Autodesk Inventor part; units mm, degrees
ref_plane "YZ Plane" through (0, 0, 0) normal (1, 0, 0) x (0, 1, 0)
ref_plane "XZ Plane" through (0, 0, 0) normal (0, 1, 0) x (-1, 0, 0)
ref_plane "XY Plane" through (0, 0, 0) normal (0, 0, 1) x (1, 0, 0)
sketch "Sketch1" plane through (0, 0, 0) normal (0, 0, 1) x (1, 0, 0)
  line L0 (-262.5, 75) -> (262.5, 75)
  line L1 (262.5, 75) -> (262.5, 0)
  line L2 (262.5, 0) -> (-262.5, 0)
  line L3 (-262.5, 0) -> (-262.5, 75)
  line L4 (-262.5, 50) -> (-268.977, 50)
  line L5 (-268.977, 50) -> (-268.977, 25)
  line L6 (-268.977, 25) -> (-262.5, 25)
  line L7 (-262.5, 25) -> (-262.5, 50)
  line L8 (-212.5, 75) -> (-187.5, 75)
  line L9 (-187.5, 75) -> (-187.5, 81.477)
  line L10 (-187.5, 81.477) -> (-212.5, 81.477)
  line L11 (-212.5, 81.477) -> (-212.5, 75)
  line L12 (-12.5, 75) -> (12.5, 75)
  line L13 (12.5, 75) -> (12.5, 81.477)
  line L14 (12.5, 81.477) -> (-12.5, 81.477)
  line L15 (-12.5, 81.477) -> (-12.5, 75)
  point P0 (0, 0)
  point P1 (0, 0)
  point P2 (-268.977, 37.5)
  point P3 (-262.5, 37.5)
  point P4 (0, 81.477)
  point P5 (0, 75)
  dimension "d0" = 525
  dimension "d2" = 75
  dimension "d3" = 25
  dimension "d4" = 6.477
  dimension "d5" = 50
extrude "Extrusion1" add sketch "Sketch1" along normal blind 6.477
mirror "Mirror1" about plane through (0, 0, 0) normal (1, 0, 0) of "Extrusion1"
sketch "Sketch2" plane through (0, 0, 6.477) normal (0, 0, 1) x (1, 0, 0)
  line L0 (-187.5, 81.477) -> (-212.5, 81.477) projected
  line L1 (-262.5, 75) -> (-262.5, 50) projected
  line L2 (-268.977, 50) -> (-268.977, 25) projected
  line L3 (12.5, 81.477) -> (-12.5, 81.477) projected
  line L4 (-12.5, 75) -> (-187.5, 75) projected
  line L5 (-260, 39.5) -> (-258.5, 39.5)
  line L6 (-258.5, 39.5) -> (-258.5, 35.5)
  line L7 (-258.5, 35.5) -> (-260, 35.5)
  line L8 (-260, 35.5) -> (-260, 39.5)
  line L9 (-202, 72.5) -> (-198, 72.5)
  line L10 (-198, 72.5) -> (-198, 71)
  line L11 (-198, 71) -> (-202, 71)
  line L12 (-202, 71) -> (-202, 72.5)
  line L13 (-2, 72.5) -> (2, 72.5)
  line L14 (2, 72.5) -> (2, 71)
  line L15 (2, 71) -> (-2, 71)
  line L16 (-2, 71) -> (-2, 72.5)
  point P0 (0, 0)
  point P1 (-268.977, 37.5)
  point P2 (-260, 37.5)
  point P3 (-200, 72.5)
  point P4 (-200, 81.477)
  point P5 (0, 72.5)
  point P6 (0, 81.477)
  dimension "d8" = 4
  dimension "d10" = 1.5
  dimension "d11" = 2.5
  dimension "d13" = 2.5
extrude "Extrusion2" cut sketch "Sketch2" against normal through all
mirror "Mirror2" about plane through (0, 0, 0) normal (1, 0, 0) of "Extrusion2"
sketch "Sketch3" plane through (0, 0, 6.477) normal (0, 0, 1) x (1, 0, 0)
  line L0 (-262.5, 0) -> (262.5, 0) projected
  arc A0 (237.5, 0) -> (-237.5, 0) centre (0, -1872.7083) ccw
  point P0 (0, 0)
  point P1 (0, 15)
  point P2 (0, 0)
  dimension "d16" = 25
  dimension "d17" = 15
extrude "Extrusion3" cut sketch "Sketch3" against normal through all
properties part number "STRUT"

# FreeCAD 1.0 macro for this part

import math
import FreeCAD as App
import Part
import Sketcher

V = App.Vector
Q = App.Units.Quantity


def add_polygon(sketch, points):
    """Adds a closed chain of lines whose ends are joined by coincident constraints."""
    first, n = sketch.GeometryCount, len(points)
    for a, b in zip(points, points[1:] + points[:1]):
        sketch.addGeometry(Part.LineSegment(App.Vector(*a, 0), App.Vector(*b, 0)), False)
    for i in range(n):
        sketch.addConstraint(Sketcher.Constraint("Coincident", first + i, 2, first + (i + 1) % n, 1))

doc = App.newDocument("Part")
body = doc.addObject("PartDesign::Body", "Body")

sketch1 = body.newObject("Sketcher::SketchObject", "Sketch")
sketch1.AttachmentSupport = (doc.getObject("XY_Plane"), [""])
sketch1.MapMode = "FlatFace"
add_polygon(sketch1, [(-212, 75), (-262, 75), (-262, 50), (-269, 50), (-269, 25), (-262, 25), (-262, 0), (262, 0), (262, 75), (12, 75), (12, 81), (-12, 81), (-12, 75), (-188, 75), (-188, 81), (-212, 81)])
sketch1.addConstraint([
    Sketcher.Constraint("Horizontal", 0),
    Sketcher.Constraint("Vertical", 1),
    Sketcher.Constraint("Horizontal", 2),
    Sketcher.Constraint("Vertical", 3),
    Sketcher.Constraint("Horizontal", 4),
    Sketcher.Constraint("Vertical", 5),
    Sketcher.Constraint("Horizontal", 6),
    Sketcher.Constraint("Vertical", 7),
    Sketcher.Constraint("Horizontal", 8),
    Sketcher.Constraint("Vertical", 9),
    Sketcher.Constraint("Horizontal", 10),
    Sketcher.Constraint("Vertical", 11),
    Sketcher.Constraint("Horizontal", 12),
    Sketcher.Constraint("Vertical", 13),
    Sketcher.Constraint("Horizontal", 14),
    Sketcher.Constraint("Vertical", 15),
    Sketcher.Constraint("Symmetric", 5, 2, 6, 2, -1, 1),
    Sketcher.Constraint("Symmetric", 0, 2, 7, 2, -2),
    Sketcher.Constraint("Symmetric", 8, 2, 11, 2, -2),
    Sketcher.Constraint("Horizontal", 10, 2, 13, 2),
    Sketcher.Constraint("Equal", 10, 14),
    Sketcher.Constraint("Equal", 14, 1),
    Sketcher.Constraint("Equal", 1, 3),
    Sketcher.Constraint("Equal", 3, 5),
    Sketcher.Constraint("Equal", 4, 9),
    Sketcher.Constraint("DistanceX", 0, 2, 0, 1, Q("50 mm")),
    Sketcher.Constraint("DistanceX", 6, 1, 6, 2, Q("525 mm")),
    Sketcher.Constraint("DistanceX", 10, 2, 10, 1, Q("25 mm")),
    Sketcher.Constraint("DistanceX", 2, 2, 2, 1, Q("6.477 mm")),
])
pad1 = body.newObject("PartDesign::Pad", "Pad")
pad1.Profile = sketch1
pad1.Length = 6.477
doc.recompute()

mirrored = body.newObject("PartDesign::Mirrored", "Mirrored")
mirrored.Originals = [pad1]
mirrored.MirrorPlane = (doc.getObject("YZ_Plane"), [""])
body.Tip = mirrored

sketch2 = body.newObject("Sketcher::SketchObject", "Sketch001")
sketch2.AttachmentSupport = (doc.getObject("XY_Plane"), [""])
sketch2.MapMode = "FlatFace"
sketch2.AttachmentOffset = App.Placement(V(0, 0, 6.477), App.Rotation())
add_polygon(sketch2, [(-258.5, 39.5), (-260, 39.5), (-260, 35.5), (-258.5, 35.5)])
add_polygon(sketch2, [(-198, 72.5), (-202, 72.5), (-202, 71), (-198, 71)])
add_polygon(sketch2, [(2, 72.5), (-2, 72.5), (-2, 71), (2, 71)])
sketch2.addConstraint([
    Sketcher.Constraint("Horizontal", 0),
    Sketcher.Constraint("Vertical", 1),
    Sketcher.Constraint("Horizontal", 2),
    Sketcher.Constraint("Vertical", 3),
    Sketcher.Constraint("Horizontal", 4),
    Sketcher.Constraint("Vertical", 5),
    Sketcher.Constraint("Horizontal", 6),
    Sketcher.Constraint("Vertical", 7),
    Sketcher.Constraint("Horizontal", 8),
    Sketcher.Constraint("Vertical", 9),
    Sketcher.Constraint("Horizontal", 10),
    Sketcher.Constraint("Vertical", 11),
    Sketcher.Constraint("Horizontal", 7, 2, 8, 2),
    Sketcher.Constraint("Horizontal", 6, 2, 9, 2),
    Sketcher.Constraint("Equal", 6, 8),
    Sketcher.Constraint("Equal", 10, 1),
    Sketcher.Constraint("Equal", 2, 5),
    Sketcher.Constraint("DistanceX", 4, 2, 4, 1, Q("4 mm")),
    Sketcher.Constraint("DistanceX", 0, 2, 0, 1, Q("1.5 mm")),
    Sketcher.Constraint("DistanceX", 0, 2, -1, 1, Q("260 mm")),
    Sketcher.Constraint("DistanceX", 4, 2, -1, 1, Q("202 mm")),
    Sketcher.Constraint("DistanceY", -1, 1, 5, 2, Q("71 mm")),
    Sketcher.Constraint("DistanceX", 8, 2, -1, 1, Q("2 mm")),
    Sketcher.Constraint("DistanceY", 3, 2, 4, 2, Q("33 mm")),
])
pocket1 = body.newObject("PartDesign::Pocket", "Pocket")
pocket1.Profile = sketch2
pocket1.Type = "ThroughAll"
doc.recompute()

mirrored2 = body.newObject("PartDesign::Mirrored", "Mirrored001")
mirrored2.Originals = [pocket1]
mirrored2.MirrorPlane = (doc.getObject("YZ_Plane"), [""])
body.Tip = mirrored2

sketch3 = body.newObject("Sketcher::SketchObject", "Sketch002")
sketch3.AttachmentSupport = (doc.getObject("XY_Plane"), [""])
sketch3.MapMode = "FlatFace"
sketch3.AttachmentOffset = App.Placement(V(0, 0, 6.477), App.Rotation())
sketch3.addGeometry([
    Part.ArcOfCircle(Part.Circle(V(0, -1873, 0), V(0, 0, 1), 1888), math.radians(82.77), math.radians(97.23)),
    Part.LineSegment(V(-238, 0, 0), V(238, 0, 0)),
], False)
sketch3.addConstraint([
    Sketcher.Constraint("Coincident", 0, 1, 1, 2),
    Sketcher.Constraint("Coincident", 1, 1, 0, 2),
    Sketcher.Constraint("Horizontal", 1),
    Sketcher.Constraint("PointOnObject", 0, 3, -2),
    Sketcher.Constraint("PointOnObject", 0, 1, -1),
    Sketcher.Constraint("DistanceX", 1, 1, 1, 2, Q("475 mm")),
    Sketcher.Constraint("Radius", 0, Q("1887.7083 mm")),
])
pocket2 = body.newObject("PartDesign::Pocket", "Pocket001")
pocket2.Profile = sketch3
pocket2.Type = "ThroughAll"

doc.recompute()
